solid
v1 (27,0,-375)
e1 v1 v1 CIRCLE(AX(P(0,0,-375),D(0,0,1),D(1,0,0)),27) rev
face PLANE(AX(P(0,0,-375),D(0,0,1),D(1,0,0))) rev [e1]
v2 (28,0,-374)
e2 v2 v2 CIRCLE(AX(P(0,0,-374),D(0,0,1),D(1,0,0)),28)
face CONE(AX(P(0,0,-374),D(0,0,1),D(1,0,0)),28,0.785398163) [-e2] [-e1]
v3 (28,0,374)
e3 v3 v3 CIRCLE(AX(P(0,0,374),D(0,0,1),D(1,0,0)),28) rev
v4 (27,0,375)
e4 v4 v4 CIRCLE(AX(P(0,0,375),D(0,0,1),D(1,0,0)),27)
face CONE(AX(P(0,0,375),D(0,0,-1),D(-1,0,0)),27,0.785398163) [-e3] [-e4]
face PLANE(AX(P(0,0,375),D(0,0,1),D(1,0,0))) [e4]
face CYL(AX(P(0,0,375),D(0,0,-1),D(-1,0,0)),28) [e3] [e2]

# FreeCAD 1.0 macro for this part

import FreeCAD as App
import Part
import Sketcher
Q = App.Units.Quantity


def edges_at(feature, points):
    """Names of the edges that pass closest to the given points."""
    edges = feature.Shape.Edges
    near = lambda p: min(range(len(edges)), key=lambda i: edges[i].distToShape(Part.Vertex(*p))[0])
    return sorted({f"Edge{near(p) + 1}" for p in points})

doc = App.newDocument("Part")
body = doc.addObject("PartDesign::Body", "Body")

sketch1 = body.newObject("Sketcher::SketchObject", "Sketch")
sketch1.AttachmentSupport = (doc.getObject("XY_Plane"), [""])
sketch1.MapMode = "FlatFace"
sketch1.addGeometry(Part.Circle(App.Vector(0, 0, 0), App.Vector(0, 0, 1), 28), False)
sketch1.addConstraint(Sketcher.Constraint("Coincident", 0, 3, -1, 1))
sketch1.addConstraint(Sketcher.Constraint("Diameter", 0, Q("56 mm")))
pad1 = body.newObject("PartDesign::Pad", "Pad")
pad1.Profile = sketch1
pad1.Length = 750
pad1.Midplane = True
doc.recompute()

chamfer = body.newObject("PartDesign::Chamfer", "Chamfer")
chamfer.Base = (pad1, edges_at(pad1, [(-28, 0, -375), (-28, 0, 375)]))
chamfer.Size = 1

doc.recompute()
